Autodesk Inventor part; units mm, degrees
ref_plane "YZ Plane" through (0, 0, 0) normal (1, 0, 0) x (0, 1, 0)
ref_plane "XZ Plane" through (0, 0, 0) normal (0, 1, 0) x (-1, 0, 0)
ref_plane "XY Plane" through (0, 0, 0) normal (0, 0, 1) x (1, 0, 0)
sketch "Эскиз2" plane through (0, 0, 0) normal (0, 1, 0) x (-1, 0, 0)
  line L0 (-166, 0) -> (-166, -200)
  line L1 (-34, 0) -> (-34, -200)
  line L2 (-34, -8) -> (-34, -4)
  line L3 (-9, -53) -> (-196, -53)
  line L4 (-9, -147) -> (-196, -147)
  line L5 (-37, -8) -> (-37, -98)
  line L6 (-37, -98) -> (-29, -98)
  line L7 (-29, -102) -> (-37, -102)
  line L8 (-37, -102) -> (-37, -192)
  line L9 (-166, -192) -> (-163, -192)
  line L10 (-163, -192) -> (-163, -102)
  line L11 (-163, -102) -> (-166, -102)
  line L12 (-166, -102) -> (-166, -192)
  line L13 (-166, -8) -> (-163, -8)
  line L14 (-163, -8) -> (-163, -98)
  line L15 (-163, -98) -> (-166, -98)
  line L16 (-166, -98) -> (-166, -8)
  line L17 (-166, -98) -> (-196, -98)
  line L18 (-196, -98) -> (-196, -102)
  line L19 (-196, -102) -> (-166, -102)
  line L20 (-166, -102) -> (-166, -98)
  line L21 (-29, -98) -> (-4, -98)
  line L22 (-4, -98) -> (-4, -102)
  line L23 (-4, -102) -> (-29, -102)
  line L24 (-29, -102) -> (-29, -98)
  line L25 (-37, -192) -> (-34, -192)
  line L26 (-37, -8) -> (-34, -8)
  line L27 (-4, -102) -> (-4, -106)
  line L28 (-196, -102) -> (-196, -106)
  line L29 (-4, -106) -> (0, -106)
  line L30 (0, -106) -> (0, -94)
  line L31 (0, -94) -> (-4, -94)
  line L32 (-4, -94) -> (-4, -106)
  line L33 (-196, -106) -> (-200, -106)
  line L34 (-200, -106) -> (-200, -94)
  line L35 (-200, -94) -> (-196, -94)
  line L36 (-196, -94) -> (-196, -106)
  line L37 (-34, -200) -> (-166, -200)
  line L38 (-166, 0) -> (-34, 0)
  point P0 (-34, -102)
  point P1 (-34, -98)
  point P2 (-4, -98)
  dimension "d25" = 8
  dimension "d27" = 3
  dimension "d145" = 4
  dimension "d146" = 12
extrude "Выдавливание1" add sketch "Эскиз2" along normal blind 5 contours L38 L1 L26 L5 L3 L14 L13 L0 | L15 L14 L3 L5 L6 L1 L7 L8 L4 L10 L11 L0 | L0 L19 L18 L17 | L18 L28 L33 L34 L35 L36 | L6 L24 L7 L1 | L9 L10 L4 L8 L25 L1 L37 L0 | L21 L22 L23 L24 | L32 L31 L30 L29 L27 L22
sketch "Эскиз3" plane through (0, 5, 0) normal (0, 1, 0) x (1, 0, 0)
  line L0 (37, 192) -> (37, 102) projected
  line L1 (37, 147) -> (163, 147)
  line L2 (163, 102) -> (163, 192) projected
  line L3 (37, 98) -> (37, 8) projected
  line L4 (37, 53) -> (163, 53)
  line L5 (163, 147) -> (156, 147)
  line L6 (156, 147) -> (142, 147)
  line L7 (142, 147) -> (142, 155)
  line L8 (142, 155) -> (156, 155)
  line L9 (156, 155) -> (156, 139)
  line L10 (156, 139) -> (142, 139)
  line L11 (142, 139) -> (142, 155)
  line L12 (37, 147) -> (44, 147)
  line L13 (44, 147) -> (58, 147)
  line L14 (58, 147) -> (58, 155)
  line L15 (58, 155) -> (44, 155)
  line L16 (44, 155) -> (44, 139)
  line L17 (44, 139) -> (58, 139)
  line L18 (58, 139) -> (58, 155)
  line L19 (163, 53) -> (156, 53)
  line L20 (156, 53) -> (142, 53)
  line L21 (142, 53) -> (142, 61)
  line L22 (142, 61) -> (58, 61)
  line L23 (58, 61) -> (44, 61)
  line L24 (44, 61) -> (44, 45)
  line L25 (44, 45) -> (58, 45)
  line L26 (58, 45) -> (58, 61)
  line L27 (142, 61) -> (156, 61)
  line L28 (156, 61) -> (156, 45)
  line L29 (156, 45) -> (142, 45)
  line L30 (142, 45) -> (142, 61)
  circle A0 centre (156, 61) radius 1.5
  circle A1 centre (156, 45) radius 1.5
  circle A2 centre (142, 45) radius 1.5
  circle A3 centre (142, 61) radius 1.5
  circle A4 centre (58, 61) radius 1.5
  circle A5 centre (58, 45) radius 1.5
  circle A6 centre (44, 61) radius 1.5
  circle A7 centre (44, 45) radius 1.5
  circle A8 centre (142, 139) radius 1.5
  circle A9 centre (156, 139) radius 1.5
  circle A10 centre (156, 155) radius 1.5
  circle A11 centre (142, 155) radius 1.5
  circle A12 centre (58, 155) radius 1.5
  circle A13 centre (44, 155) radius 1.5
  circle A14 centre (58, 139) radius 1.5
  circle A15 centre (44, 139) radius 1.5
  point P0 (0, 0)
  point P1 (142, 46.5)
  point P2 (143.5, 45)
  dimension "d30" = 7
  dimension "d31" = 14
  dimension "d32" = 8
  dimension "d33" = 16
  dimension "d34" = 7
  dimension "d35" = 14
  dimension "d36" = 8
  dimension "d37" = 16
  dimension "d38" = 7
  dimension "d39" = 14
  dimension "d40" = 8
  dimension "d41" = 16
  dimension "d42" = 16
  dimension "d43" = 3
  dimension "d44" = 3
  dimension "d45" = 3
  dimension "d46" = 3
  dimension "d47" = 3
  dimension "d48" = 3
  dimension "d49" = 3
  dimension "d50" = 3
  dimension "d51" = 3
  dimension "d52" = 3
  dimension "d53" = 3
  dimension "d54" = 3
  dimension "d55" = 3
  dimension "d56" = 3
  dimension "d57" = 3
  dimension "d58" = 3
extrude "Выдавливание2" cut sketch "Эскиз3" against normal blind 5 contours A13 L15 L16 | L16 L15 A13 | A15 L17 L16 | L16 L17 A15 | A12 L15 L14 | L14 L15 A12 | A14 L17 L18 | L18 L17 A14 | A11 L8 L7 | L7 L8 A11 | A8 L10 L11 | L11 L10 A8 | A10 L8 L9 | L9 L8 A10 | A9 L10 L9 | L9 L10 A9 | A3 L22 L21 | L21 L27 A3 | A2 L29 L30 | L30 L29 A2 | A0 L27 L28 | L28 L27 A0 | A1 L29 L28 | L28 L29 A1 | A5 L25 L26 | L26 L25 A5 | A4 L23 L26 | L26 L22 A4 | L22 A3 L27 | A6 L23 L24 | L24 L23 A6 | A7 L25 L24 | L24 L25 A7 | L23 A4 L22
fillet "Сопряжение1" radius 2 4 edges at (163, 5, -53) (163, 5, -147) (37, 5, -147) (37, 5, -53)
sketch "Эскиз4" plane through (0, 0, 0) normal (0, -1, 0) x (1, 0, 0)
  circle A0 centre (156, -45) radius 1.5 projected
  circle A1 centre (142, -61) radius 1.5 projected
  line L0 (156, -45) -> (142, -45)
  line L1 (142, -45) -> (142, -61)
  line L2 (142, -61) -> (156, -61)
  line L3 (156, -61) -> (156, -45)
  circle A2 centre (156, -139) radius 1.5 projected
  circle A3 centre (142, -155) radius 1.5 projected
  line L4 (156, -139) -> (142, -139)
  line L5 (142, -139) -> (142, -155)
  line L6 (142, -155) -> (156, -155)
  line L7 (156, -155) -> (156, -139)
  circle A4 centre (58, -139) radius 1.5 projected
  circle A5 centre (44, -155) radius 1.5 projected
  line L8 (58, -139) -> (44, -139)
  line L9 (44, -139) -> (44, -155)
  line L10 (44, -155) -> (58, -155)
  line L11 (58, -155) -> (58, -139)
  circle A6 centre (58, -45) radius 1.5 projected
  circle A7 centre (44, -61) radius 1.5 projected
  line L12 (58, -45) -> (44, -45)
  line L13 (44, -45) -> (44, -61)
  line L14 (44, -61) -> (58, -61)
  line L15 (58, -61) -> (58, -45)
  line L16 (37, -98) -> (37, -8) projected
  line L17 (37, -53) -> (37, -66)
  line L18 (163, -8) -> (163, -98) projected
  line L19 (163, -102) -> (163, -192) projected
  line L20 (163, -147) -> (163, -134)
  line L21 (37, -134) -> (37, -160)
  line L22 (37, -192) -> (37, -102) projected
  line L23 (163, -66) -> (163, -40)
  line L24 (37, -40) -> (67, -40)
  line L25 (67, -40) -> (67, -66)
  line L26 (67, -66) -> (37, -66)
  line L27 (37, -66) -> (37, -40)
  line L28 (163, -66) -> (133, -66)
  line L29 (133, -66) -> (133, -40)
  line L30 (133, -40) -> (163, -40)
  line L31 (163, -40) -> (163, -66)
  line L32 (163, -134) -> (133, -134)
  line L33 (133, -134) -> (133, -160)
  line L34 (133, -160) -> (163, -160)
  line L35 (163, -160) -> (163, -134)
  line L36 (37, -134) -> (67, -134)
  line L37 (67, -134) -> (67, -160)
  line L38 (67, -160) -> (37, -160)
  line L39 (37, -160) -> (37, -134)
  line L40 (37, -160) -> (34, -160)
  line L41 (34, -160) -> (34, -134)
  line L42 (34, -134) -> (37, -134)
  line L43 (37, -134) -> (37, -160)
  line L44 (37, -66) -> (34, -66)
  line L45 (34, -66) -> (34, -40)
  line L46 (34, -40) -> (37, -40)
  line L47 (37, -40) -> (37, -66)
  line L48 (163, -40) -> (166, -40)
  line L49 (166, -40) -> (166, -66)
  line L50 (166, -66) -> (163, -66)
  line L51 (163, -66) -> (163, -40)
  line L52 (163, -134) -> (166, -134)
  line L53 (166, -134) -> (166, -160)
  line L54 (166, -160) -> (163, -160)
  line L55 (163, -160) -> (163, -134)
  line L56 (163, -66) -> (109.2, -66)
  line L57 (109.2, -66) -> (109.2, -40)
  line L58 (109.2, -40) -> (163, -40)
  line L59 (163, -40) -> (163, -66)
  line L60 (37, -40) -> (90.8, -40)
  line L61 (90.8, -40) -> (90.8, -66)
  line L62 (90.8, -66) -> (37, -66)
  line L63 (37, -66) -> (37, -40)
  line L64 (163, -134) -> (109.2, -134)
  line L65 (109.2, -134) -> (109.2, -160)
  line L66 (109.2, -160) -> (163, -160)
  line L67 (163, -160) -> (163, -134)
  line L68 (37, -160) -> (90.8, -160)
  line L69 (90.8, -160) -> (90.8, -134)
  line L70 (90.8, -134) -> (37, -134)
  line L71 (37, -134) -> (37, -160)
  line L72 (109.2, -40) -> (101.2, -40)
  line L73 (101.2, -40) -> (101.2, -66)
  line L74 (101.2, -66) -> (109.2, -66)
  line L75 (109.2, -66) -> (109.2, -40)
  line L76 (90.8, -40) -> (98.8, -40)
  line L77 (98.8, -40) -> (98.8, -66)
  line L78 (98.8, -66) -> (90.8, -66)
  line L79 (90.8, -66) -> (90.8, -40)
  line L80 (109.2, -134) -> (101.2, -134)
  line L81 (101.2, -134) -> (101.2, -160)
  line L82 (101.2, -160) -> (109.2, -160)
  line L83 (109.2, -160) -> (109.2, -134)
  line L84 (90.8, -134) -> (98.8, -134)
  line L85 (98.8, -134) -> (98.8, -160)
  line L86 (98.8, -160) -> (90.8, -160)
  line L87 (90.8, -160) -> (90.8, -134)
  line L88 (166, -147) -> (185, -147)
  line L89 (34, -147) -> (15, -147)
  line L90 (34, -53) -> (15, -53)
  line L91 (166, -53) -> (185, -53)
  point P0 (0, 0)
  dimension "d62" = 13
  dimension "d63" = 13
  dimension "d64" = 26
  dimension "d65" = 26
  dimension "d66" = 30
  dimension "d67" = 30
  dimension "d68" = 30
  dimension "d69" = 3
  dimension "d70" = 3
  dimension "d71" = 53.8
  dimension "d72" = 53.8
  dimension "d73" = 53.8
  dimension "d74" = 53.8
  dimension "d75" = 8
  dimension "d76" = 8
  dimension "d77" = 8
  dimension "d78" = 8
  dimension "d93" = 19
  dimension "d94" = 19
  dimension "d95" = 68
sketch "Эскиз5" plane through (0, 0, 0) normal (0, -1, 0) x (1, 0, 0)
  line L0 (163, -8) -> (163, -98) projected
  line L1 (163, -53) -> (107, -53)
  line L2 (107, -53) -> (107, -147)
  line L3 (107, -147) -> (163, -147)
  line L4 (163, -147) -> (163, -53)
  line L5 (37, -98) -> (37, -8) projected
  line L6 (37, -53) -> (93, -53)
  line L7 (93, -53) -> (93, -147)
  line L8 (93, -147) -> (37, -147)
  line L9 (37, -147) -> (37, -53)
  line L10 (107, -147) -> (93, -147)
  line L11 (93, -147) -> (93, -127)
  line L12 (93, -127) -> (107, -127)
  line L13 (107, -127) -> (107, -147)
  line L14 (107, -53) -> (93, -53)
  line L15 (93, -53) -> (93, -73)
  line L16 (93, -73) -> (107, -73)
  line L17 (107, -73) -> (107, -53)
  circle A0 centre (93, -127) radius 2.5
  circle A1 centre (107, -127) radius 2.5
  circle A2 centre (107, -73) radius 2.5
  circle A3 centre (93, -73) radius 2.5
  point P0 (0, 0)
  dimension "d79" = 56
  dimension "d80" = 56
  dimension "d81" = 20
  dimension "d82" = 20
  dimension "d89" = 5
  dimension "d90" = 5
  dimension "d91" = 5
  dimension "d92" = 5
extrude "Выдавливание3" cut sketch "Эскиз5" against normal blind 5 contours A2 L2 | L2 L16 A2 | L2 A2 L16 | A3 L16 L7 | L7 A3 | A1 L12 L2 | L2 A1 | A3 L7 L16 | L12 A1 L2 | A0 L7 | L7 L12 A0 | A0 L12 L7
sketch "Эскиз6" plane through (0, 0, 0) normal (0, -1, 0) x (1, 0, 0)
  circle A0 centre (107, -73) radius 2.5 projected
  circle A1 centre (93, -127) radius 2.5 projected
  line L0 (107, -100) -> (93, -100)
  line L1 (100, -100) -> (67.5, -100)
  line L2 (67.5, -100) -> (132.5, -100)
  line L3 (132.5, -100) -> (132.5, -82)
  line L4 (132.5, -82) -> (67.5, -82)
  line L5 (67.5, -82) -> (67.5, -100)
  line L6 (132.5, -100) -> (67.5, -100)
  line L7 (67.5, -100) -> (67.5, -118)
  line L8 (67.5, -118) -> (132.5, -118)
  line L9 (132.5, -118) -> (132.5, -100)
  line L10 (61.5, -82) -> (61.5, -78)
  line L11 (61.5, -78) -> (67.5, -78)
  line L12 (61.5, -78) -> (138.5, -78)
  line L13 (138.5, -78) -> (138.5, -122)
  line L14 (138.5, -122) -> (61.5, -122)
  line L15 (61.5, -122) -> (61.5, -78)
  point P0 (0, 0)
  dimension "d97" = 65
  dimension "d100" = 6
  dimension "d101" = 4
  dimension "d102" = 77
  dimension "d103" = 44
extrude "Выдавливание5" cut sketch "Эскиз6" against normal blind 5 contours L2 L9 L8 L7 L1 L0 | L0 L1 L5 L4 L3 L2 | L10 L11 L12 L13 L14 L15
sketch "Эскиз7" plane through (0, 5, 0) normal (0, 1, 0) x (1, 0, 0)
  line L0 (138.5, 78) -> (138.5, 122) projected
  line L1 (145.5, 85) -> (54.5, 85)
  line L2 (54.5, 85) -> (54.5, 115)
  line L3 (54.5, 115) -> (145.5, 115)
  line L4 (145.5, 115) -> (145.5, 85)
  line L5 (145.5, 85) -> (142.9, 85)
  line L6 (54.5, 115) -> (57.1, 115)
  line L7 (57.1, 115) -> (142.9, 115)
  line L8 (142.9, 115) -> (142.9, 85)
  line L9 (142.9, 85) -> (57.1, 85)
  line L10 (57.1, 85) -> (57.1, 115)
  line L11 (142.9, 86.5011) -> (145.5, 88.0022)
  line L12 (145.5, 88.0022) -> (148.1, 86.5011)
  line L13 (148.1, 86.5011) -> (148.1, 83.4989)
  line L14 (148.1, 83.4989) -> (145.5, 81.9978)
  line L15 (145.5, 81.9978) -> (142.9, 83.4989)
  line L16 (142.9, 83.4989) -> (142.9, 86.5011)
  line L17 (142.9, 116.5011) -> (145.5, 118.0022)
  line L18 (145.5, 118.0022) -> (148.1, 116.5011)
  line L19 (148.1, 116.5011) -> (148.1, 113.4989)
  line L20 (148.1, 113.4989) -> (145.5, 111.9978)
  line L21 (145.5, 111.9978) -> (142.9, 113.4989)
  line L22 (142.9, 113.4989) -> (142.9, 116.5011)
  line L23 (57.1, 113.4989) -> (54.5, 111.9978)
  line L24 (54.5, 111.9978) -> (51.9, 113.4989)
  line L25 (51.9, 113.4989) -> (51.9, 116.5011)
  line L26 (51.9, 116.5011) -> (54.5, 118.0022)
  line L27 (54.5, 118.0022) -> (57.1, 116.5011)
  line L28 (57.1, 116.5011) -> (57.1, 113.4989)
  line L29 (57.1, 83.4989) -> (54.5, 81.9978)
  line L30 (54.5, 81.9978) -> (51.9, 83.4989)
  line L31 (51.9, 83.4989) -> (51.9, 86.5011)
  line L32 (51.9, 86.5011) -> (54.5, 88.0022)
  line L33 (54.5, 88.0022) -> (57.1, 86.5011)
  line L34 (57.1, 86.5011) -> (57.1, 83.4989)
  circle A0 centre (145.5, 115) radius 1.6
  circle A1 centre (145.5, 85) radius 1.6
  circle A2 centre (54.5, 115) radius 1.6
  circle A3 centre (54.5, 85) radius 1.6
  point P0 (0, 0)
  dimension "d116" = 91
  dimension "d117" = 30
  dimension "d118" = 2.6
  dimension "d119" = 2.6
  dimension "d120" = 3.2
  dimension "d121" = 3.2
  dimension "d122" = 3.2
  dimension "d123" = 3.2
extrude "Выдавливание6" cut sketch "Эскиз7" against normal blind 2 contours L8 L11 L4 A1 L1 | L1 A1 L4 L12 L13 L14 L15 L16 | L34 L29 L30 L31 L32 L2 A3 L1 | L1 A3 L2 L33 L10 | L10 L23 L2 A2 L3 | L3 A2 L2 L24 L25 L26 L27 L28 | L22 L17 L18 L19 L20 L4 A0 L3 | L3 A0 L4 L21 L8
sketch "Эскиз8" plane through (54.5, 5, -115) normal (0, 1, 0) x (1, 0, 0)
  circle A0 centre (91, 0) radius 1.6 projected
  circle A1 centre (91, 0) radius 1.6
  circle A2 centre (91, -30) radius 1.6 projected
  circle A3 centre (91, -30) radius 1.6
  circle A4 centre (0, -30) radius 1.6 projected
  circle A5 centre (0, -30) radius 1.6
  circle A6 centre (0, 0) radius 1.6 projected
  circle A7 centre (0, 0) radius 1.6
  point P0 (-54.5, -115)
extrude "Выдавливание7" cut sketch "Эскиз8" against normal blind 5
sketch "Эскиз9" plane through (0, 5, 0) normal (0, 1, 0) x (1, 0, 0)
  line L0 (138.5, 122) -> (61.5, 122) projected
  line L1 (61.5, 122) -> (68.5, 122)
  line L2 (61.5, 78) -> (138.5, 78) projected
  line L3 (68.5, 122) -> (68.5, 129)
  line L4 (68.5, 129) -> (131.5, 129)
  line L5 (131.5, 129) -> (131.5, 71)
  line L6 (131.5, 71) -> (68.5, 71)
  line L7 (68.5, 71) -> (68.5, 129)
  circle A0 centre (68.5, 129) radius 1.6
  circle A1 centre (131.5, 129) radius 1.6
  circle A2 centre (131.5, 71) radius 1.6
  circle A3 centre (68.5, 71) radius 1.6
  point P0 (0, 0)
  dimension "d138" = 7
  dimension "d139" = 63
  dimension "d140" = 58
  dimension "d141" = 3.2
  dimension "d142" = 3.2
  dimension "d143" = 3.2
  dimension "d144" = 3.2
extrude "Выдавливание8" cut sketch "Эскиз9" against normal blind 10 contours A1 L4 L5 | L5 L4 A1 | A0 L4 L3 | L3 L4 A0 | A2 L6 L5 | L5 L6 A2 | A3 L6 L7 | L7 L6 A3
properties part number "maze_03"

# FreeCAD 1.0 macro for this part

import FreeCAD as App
import Part
import Sketcher
from FreeCAD import Vector
Q = App.Units.Quantity


def edges_at(feature, points):
    """Names of the edges that pass closest to the given points."""
    edges = feature.Shape.Edges
    near = lambda p: min(range(len(edges)), key=lambda i: edges[i].distToShape(Part.Vertex(*p))[0])
    return sorted({f"Edge{near(p) + 1}" for p in points})

doc = App.newDocument("Part")
body = doc.addObject("PartDesign::Body", "Body")

# Sketch on XZ plane
sketch1 = body.newObject("Sketcher::SketchObject", "Sketch")
sketch1.AttachmentSupport = (doc.getObject("XZ_Plane"), [""])
sketch1.MapMode = "FlatFace"
sketch1.addGeometry([
    Part.LineSegment(Vector(34, 0, 0), Vector(166, 0, 0)),  # 0
    Part.LineSegment(Vector(166, 0, 0), Vector(166, -8, 0)),  # 1
    Part.LineSegment(Vector(166, -8, 0), Vector(163, -8, 0)),  # 2
    Part.LineSegment(Vector(163, -8, 0), Vector(163, -98, 0)),  # 3
    Part.LineSegment(Vector(163, -98, 0), Vector(196, -98, 0)),  # 4
    Part.LineSegment(Vector(196, -98, 0), Vector(196, -94, 0)),  # 5
    Part.LineSegment(Vector(196, -94, 0), Vector(200, -94, 0)),  # 6
    Part.LineSegment(Vector(200, -94, 0), Vector(200, -106, 0)),  # 7
    Part.LineSegment(Vector(200, -106, 0), Vector(196, -106, 0)),  # 8
    Part.LineSegment(Vector(196, -106, 0), Vector(196, -102, 0)),  # 9
    Part.LineSegment(Vector(196, -102, 0), Vector(163, -102, 0)),  # 10
    Part.LineSegment(Vector(163, -102, 0), Vector(163, -192, 0)),  # 11
    Part.LineSegment(Vector(163, -192, 0), Vector(166, -192, 0)),  # 12
    Part.LineSegment(Vector(166, -192, 0), Vector(166, -200, 0)),  # 13
    Part.LineSegment(Vector(166, -200, 0), Vector(34, -200, 0)),  # 14
    Part.LineSegment(Vector(34, -200, 0), Vector(34, -192, 0)),  # 15
    Part.LineSegment(Vector(34, -192, 0), Vector(37, -192, 0)),  # 16
    Part.LineSegment(Vector(37, -192, 0), Vector(37, -102, 0)),  # 17
    Part.LineSegment(Vector(37, -102, 0), Vector(4, -102, 0)),  # 18
    Part.LineSegment(Vector(4, -102, 0), Vector(4, -106, 0)),  # 19
    Part.LineSegment(Vector(4, -106, 0), Vector(0, -106, 0)),  # 20
    Part.LineSegment(Vector(0, -106, 0), Vector(0, -94, 0)),  # 21
    Part.LineSegment(Vector(0, -94, 0), Vector(4, -94, 0)),  # 22
    Part.LineSegment(Vector(4, -94, 0), Vector(4, -98, 0)),  # 23
    Part.LineSegment(Vector(4, -98, 0), Vector(37, -98, 0)),  # 24
    Part.LineSegment(Vector(37, -98, 0), Vector(37, -8, 0)),  # 25
    Part.LineSegment(Vector(37, -8, 0), Vector(34, -8, 0)),  # 26
    Part.LineSegment(Vector(34, -8, 0), Vector(34, 0, 0)),  # 27
], False)
sketch1.addConstraint([
    Sketcher.Constraint("Coincident", 0, 2, 1, 1),
    Sketcher.Constraint("Coincident", 1, 2, 2, 1),
    Sketcher.Constraint("Coincident", 2, 2, 3, 1),
    Sketcher.Constraint("Coincident", 3, 2, 4, 1),
    Sketcher.Constraint("Coincident", 4, 2, 5, 1),
    Sketcher.Constraint("Coincident", 5, 2, 6, 1),
    Sketcher.Constraint("Coincident", 6, 2, 7, 1),
    Sketcher.Constraint("Coincident", 7, 2, 8, 1),
    Sketcher.Constraint("Coincident", 8, 2, 9, 1),
    Sketcher.Constraint("Coincident", 9, 2, 10, 1),
    Sketcher.Constraint("Coincident", 10, 2, 11, 1),
    Sketcher.Constraint("Coincident", 11, 2, 12, 1),
    Sketcher.Constraint("Coincident", 12, 2, 13, 1),
    Sketcher.Constraint("Coincident", 13, 2, 14, 1),
    Sketcher.Constraint("Coincident", 14, 2, 15, 1),
    Sketcher.Constraint("Coincident", 15, 2, 16, 1),
    Sketcher.Constraint("Coincident", 16, 2, 17, 1),
    Sketcher.Constraint("Coincident", 17, 2, 18, 1),
    Sketcher.Constraint("Coincident", 18, 2, 19, 1),
    Sketcher.Constraint("Coincident", 19, 2, 20, 1),
    Sketcher.Constraint("Coincident", 20, 2, 21, 1),
    Sketcher.Constraint("Coincident", 21, 2, 22, 1),
    Sketcher.Constraint("Coincident", 22, 2, 23, 1),
    Sketcher.Constraint("Coincident", 23, 2, 24, 1),
    Sketcher.Constraint("Coincident", 24, 2, 25, 1),
    Sketcher.Constraint("Coincident", 25, 2, 26, 1),
    Sketcher.Constraint("Coincident", 26, 2, 27, 1),
    Sketcher.Constraint("Coincident", 27, 2, 0, 1),
    Sketcher.Constraint("Horizontal", 0),
    Sketcher.Constraint("Vertical", 1),
    Sketcher.Constraint("Horizontal", 2),
    Sketcher.Constraint("Vertical", 3),
    Sketcher.Constraint("Horizontal", 4),
    Sketcher.Constraint("Vertical", 5),
    Sketcher.Constraint("Horizontal", 6),
    Sketcher.Constraint("Vertical", 7),
    Sketcher.Constraint("Horizontal", 8),
    Sketcher.Constraint("Vertical", 9),
    Sketcher.Constraint("Horizontal", 10),
    Sketcher.Constraint("Vertical", 11),
    Sketcher.Constraint("Horizontal", 12),
    Sketcher.Constraint("Vertical", 13),
    Sketcher.Constraint("Horizontal", 14),
    Sketcher.Constraint("Vertical", 15),
    Sketcher.Constraint("Horizontal", 16),
    Sketcher.Constraint("Vertical", 17),
    Sketcher.Constraint("Horizontal", 18),
    Sketcher.Constraint("Vertical", 19),
    Sketcher.Constraint("Horizontal", 20),
    Sketcher.Constraint("Vertical", 21),
    Sketcher.Constraint("Horizontal", 22),
    Sketcher.Constraint("Vertical", 23),
    Sketcher.Constraint("Horizontal", 24),
    Sketcher.Constraint("Vertical", 25),
    Sketcher.Constraint("Horizontal", 26),
    Sketcher.Constraint("Vertical", 27),
    Sketcher.Constraint("PointOnObject", 0, 2, -1),
    Sketcher.Constraint("PointOnObject", 20, 2, -2),
    Sketcher.Constraint("Horizontal", 12, 2, 15, 2),
    Sketcher.Constraint("Horizontal", 10, 2, 17, 2),
    Sketcher.Constraint("Horizontal", 8, 2, 19, 2),
    Sketcher.Constraint("Horizontal", 6, 2, 21, 2),
    Sketcher.Constraint("Horizontal", 4, 2, 23, 2),
    Sketcher.Constraint("Horizontal", 2, 2, 25, 2),
    Sketcher.Constraint("Vertical", 5, 2, 8, 2),
    Sketcher.Constraint("Vertical", 3, 2, 10, 2),
    Sketcher.Constraint("Vertical", 1, 2, 12, 2),
    Sketcher.Constraint("Vertical", 19, 2, 22, 2),
    Sketcher.Constraint("Vertical", 17, 2, 24, 2),
    Sketcher.Constraint("Vertical", 15, 2, 26, 2),
    Sketcher.Constraint("Equal", 12, 16),
    Sketcher.Constraint("Equal", 10, 18),
    Sketcher.Constraint("Equal", 8, 20),
    Sketcher.Constraint("Equal", 22, 5),
    Sketcher.Constraint("Equal", 5, 9),
    Sketcher.Constraint("Equal", 3, 11),
    Sketcher.Constraint("Equal", 1, 13),
    Sketcher.Constraint("DistanceX", 2, 2, 2, 1, 3.0),
    Sketcher.Constraint("DistanceX", 6, 1, 6, 2, 4.0),
    Sketcher.Constraint("DistanceY", 1, 2, 1, 1, 8.0),
    Sketcher.Constraint("DistanceY", 7, 2, 7, 1, 12.0),
    Sketcher.Constraint("DistanceX", 0, 1, 0, 2, 132.0),
    Sketcher.Constraint("DistanceX", 4, 1, 4, 2, 33.0),
    Sketcher.Constraint("DistanceY", 3, 2, 3, 1, 90.0),
])
pad1 = body.newObject("PartDesign::Pad", "Pad")
pad1.Profile = sketch1
pad1.Length = 5
pad1.Reversed = True

# Sketch on XZ plane
sketch2 = body.newObject("Sketcher::SketchObject", "Sketch001")
sketch2.AttachmentSupport = (doc.getObject("XZ_Plane"), [""])
sketch2.MapMode = "FlatFace"
sketch2.AttachmentOffset = App.Placement(Vector(0, 0, -5), App.Rotation())
sketch2.addGeometry([
    Part.Circle(Vector(44, -155, 0), Vector(0, 0, 1), 1.5),  # 0
    Part.Circle(Vector(44, -139, 0), Vector(0, 0, 1), 1.5),  # 1
    Part.Circle(Vector(58, -155, 0), Vector(0, 0, 1), 1.5),  # 2
    Part.Circle(Vector(58, -139, 0), Vector(0, 0, 1), 1.5),  # 3
    Part.Circle(Vector(142, -155, 0), Vector(0, 0, 1), 1.5),  # 4
    Part.Circle(Vector(142, -139, 0), Vector(0, 0, 1), 1.5),  # 5
    Part.Circle(Vector(156, -155, 0), Vector(0, 0, 1), 1.5),  # 6
    Part.Circle(Vector(156, -139, 0), Vector(0, 0, 1), 1.5),  # 7
    Part.Circle(Vector(142, -61, 0), Vector(0, 0, 1), 1.5),  # 8
    Part.Circle(Vector(142, -45, 0), Vector(0, 0, 1), 1.5),  # 9
    Part.Circle(Vector(156, -61, 0), Vector(0, 0, 1), 1.5),  # 10
    Part.Circle(Vector(156, -45, 0), Vector(0, 0, 1), 1.5),  # 11
    Part.Circle(Vector(58, -45, 0), Vector(0, 0, 1), 1.5),  # 12
    Part.Circle(Vector(58, -61, 0), Vector(0, 0, 1), 1.5),  # 13
    Part.Circle(Vector(44, -61, 0), Vector(0, 0, 1), 1.5),  # 14
    Part.Circle(Vector(44, -45, 0), Vector(0, 0, 1), 1.5),  # 15
], False)
sketch2.addConstraint([
    Sketcher.Constraint("Equal", 0, 1),
    Sketcher.Constraint("Equal", 1, 2),
    Sketcher.Constraint("Equal", 2, 3),
    Sketcher.Constraint("Equal", 3, 4),
    Sketcher.Constraint("Equal", 4, 5),
    Sketcher.Constraint("Equal", 5, 6),
    Sketcher.Constraint("Equal", 6, 7),
    Sketcher.Constraint("Equal", 7, 8),
    Sketcher.Constraint("Equal", 8, 9),
    Sketcher.Constraint("Equal", 9, 10),
    Sketcher.Constraint("Equal", 10, 11),
    Sketcher.Constraint("Equal", 11, 12),
    Sketcher.Constraint("Equal", 12, 13),
    Sketcher.Constraint("Equal", 13, 14),
    Sketcher.Constraint("Equal", 14, 15),
    Sketcher.Constraint("Horizontal", 0, 3, 2, 3),
    Sketcher.Constraint("Horizontal", 1, 3, 3, 3),
    Sketcher.Constraint("Horizontal", 2, 3, 4, 3),
    Sketcher.Constraint("Horizontal", 3, 3, 5, 3),
    Sketcher.Constraint("Horizontal", 4, 3, 6, 3),
    Sketcher.Constraint("Horizontal", 5, 3, 7, 3),
    Sketcher.Constraint("Horizontal", 8, 3, 10, 3),
    Sketcher.Constraint("Horizontal", 9, 3, 11, 3),
    Sketcher.Constraint("Horizontal", 11, 3, 12, 3),
    Sketcher.Constraint("Horizontal", 10, 3, 13, 3),
    Sketcher.Constraint("Horizontal", 13, 3, 14, 3),
    Sketcher.Constraint("Horizontal", 12, 3, 15, 3),
    Sketcher.Constraint("Vertical", 0, 3, 1, 3),
    Sketcher.Constraint("Vertical", 2, 3, 3, 3),
    Sketcher.Constraint("Vertical", 4, 3, 5, 3),
    Sketcher.Constraint("Vertical", 6, 3, 7, 3),
    Sketcher.Constraint("Vertical", 5, 3, 8, 3),
    Sketcher.Constraint("Vertical", 8, 3, 9, 3),
    Sketcher.Constraint("Vertical", 7, 3, 10, 3),
    Sketcher.Constraint("Vertical", 10, 3, 11, 3),
    Sketcher.Constraint("Vertical", 3, 3, 12, 3),
    Sketcher.Constraint("Vertical", 12, 3, 13, 3),
    Sketcher.Constraint("Vertical", 1, 3, 14, 3),
    Sketcher.Constraint("Vertical", 14, 3, 15, 3),
    Sketcher.Constraint("Diameter", 0, 3.0),
    Sketcher.Constraint("DistanceY", 0, 3, 1, 3, 16.0),
    Sketcher.Constraint("DistanceX", 0, 3, 2, 3, 14.0),
    Sketcher.Constraint("DistanceX", 4, 3, 6, 3, 14.0),
    Sketcher.Constraint("DistanceY", 8, 3, 9, 3, 16.0),
    Sketcher.Constraint("DistanceX", -1, 1, 0, 3, 44.0),
    Sketcher.Constraint("DistanceY", 0, 3, -1, 1, 155.0),
    Sketcher.Constraint("DistanceX", -1, 1, 4, 3, 142.0),
    Sketcher.Constraint("DistanceY", 8, 3, -1, 1, 61.0),
])
pocket1 = body.newObject("PartDesign::Pocket", "Pocket")
pocket1.Profile = sketch2
pocket1.Length = 5
pocket1.Reversed = True
doc.recompute()

fillet = body.newObject("PartDesign::Fillet", "Fillet")
fillet.Base = (pocket1, edges_at(pocket1, [
    (163, 5, -53),
    (163, 5, -147),
    (37, 5, -147),
    (37, 5, -53),
]))
fillet.Radius = 2

# Sketch on XZ plane
sketch3 = body.newObject("Sketcher::SketchObject", "Sketch002")
sketch3.AttachmentSupport = (doc.getObject("XZ_Plane"), [""])
sketch3.MapMode = "FlatFace"
sketch3.addGeometry([
    Part.Circle(Vector(107, -73, 0), Vector(0, 0, 1), 2.5),
    Part.Circle(Vector(93, -73, 0), Vector(0, 0, 1), 2.5),
    Part.Circle(Vector(107, -127, 0), Vector(0, 0, 1), 2.5),
    Part.Circle(Vector(93, -127, 0), Vector(0, 0, 1), 2.5),
], False)
sketch3.addConstraint([
    Sketcher.Constraint("Equal", 0, 1),
    Sketcher.Constraint("Equal", 1, 2),
    Sketcher.Constraint("Equal", 2, 3),
    Sketcher.Constraint("Horizontal", 0, 3, 1, 3),
    Sketcher.Constraint("Horizontal", 2, 3, 3, 3),
    Sketcher.Constraint("Vertical", 0, 3, 2, 3),
    Sketcher.Constraint("Vertical", 1, 3, 3, 3),
    Sketcher.Constraint("Diameter", 0, 5.0),
    Sketcher.Constraint("DistanceX", -1, 1, 0, 3, 107.0),
    Sketcher.Constraint("DistanceY", 0, 3, -1, 1, 73.0),
    Sketcher.Constraint("DistanceX", -1, 1, 1, 3, 93.0),
    Sketcher.Constraint("DistanceY", 2, 3, -1, 1, 127.0),
])
pocket2 = body.newObject("PartDesign::Pocket", "Pocket001")
pocket2.Profile = sketch3
pocket2.Length = 5

# Sketch on XZ plane
sketch4 = body.newObject("Sketcher::SketchObject", "Sketch003")
sketch4.AttachmentSupport = (doc.getObject("XZ_Plane"), [""])
sketch4.MapMode = "FlatFace"
sketch4.addGeometry([
    Part.LineSegment(Vector(62, -78, 0), Vector(62, -122, 0)),
    Part.LineSegment(Vector(62, -122, 0), Vector(138, -122, 0)),
    Part.LineSegment(Vector(138, -122, 0), Vector(138, -78, 0)),
    Part.LineSegment(Vector(138, -78, 0), Vector(62, -78, 0)),
], False)
sketch4.addConstraint([
    Sketcher.Constraint("Coincident", 0, 2, 1, 1),
    Sketcher.Constraint("Coincident", 1, 2, 2, 1),
    Sketcher.Constraint("Coincident", 2, 2, 3, 1),
    Sketcher.Constraint("Coincident", 3, 2, 0, 1),
    Sketcher.Constraint("Vertical", 0),
    Sketcher.Constraint("Horizontal", 1),
    Sketcher.Constraint("Vertical", 2),
    Sketcher.Constraint("Horizontal", 3),
    Sketcher.Constraint("DistanceX", 1, 1, 1, 2, 77.0),
    Sketcher.Constraint("DistanceY", 0, 2, 0, 1, 44.0),
    Sketcher.Constraint("DistanceY", 0, 2, -1, 1, 122.0),
    Sketcher.Constraint("DistanceX", -1, 1, 0, 2, 61.5),
])
pocket3 = body.newObject("PartDesign::Pocket", "Pocket002")
pocket3.Profile = sketch4
pocket3.Length = 5

# Sketch on XZ plane
sketch5 = body.newObject("Sketcher::SketchObject", "Sketch004")
sketch5.AttachmentSupport = (doc.getObject("XZ_Plane"), [""])
sketch5.MapMode = "FlatFace"
sketch5.AttachmentOffset = App.Placement(Vector(0, 0, -5), App.Rotation())
sketch5.addGeometry([
    Part.LineSegment(Vector(142.9, -86.5, 0), Vector(142.9, -83.5, 0)),  # 0
    Part.LineSegment(Vector(142.9, -83.5, 0), Vector(145.5, -82, 0)),  # 1
    Part.LineSegment(Vector(145.5, -82, 0), Vector(148.1, -83.5, 0)),  # 2
    Part.LineSegment(Vector(148.1, -83.5, 0), Vector(148.1, -86.5, 0)),  # 3
    Part.LineSegment(Vector(148.1, -86.5, 0), Vector(145.5, -88, 0)),  # 4
    Part.LineSegment(Vector(145.5, -88, 0), Vector(142.9, -86.5, 0)),  # 5
    Part.Circle(Vector(145.5, -85, 0), Vector(0, 0, 1), 1.6),  # 6
    Part.LineSegment(Vector(57.1, -83.5, 0), Vector(57.1, -86.5, 0)),  # 7
    Part.LineSegment(Vector(57.1, -86.5, 0), Vector(54.5, -88, 0)),  # 8
    Part.LineSegment(Vector(54.5, -88, 0), Vector(51.9, -86.5, 0)),  # 9
    Part.LineSegment(Vector(51.9, -86.5, 0), Vector(51.9, -83.5, 0)),  # 10
    Part.LineSegment(Vector(51.9, -83.5, 0), Vector(54.5, -82, 0)),  # 11
    Part.LineSegment(Vector(54.5, -82, 0), Vector(57.1, -83.5, 0)),  # 12
    Part.Circle(Vector(54.5, -85, 0), Vector(0, 0, 1), 1.6),  # 13
    Part.LineSegment(Vector(57.1, -113.5, 0), Vector(57.1, -116.5, 0)),  # 14
    Part.LineSegment(Vector(57.1, -116.5, 0), Vector(54.5, -118, 0)),  # 15
    Part.LineSegment(Vector(54.5, -118, 0), Vector(51.9, -116.5, 0)),  # 16
    Part.LineSegment(Vector(51.9, -116.5, 0), Vector(51.9, -113.5, 0)),  # 17
    Part.LineSegment(Vector(51.9, -113.5, 0), Vector(54.5, -112, 0)),  # 18
    Part.LineSegment(Vector(54.5, -112, 0), Vector(57.1, -113.5, 0)),  # 19
    Part.Circle(Vector(54.5, -115, 0), Vector(0, 0, 1), 1.6),  # 20
    Part.LineSegment(Vector(142.9, -116.5, 0), Vector(142.9, -113.5, 0)),  # 21
    Part.LineSegment(Vector(142.9, -113.5, 0), Vector(145.5, -112, 0)),  # 22
    Part.LineSegment(Vector(145.5, -112, 0), Vector(148.1, -113.5, 0)),  # 23
    Part.LineSegment(Vector(148.1, -113.5, 0), Vector(148.1, -116.5, 0)),  # 24
    Part.LineSegment(Vector(148.1, -116.5, 0), Vector(145.5, -118, 0)),  # 25
    Part.LineSegment(Vector(145.5, -118, 0), Vector(142.9, -116.5, 0)),  # 26
    Part.Circle(Vector(145.5, -115, 0), Vector(0, 0, 1), 1.6),  # 27
], False)
sketch5.addConstraint([
    Sketcher.Constraint("Coincident", 0, 2, 1, 1),
    Sketcher.Constraint("Coincident", 1, 2, 2, 1),
    Sketcher.Constraint("Coincident", 2, 2, 3, 1),
    Sketcher.Constraint("Coincident", 3, 2, 4, 1),
    Sketcher.Constraint("Coincident", 4, 2, 5, 1),
    Sketcher.Constraint("Coincident", 5, 2, 0, 1),
    Sketcher.Constraint("Coincident", 7, 2, 8, 1),
    Sketcher.Constraint("Coincident", 8, 2, 9, 1),
    Sketcher.Constraint("Coincident", 9, 2, 10, 1),
    Sketcher.Constraint("Coincident", 10, 2, 11, 1),
    Sketcher.Constraint("Coincident", 11, 2, 12, 1),
    Sketcher.Constraint("Coincident", 12, 2, 7, 1),
    Sketcher.Constraint("Coincident", 14, 2, 15, 1),
    Sketcher.Constraint("Coincident", 15, 2, 16, 1),
    Sketcher.Constraint("Coincident", 16, 2, 17, 1),
    Sketcher.Constraint("Coincident", 17, 2, 18, 1),
    Sketcher.Constraint("Coincident", 18, 2, 19, 1),
    Sketcher.Constraint("Coincident", 19, 2, 14, 1),
    Sketcher.Constraint("Coincident", 21, 2, 22, 1),
    Sketcher.Constraint("Coincident", 22, 2, 23, 1),
    Sketcher.Constraint("Coincident", 23, 2, 24, 1),
    Sketcher.Constraint("Coincident", 24, 2, 25, 1),
    Sketcher.Constraint("Coincident", 25, 2, 26, 1),
    Sketcher.Constraint("Coincident", 26, 2, 21, 1),
    Sketcher.Constraint("Vertical", 0),
    Sketcher.Constraint("Vertical", 3),
    Sketcher.Constraint("Vertical", 7),
    Sketcher.Constraint("Vertical", 10),
    Sketcher.Constraint("Vertical", 14),
    Sketcher.Constraint("Vertical", 17),
    Sketcher.Constraint("Vertical", 21),
    Sketcher.Constraint("Vertical", 24),
    Sketcher.Constraint("Equal", 6, 13),
    Sketcher.Constraint("Equal", 13, 20),
    Sketcher.Constraint("Equal", 20, 27),
    Sketcher.Constraint("Parallel", 1, 4),
    Sketcher.Constraint("Parallel", 2, 5),
    Sketcher.Constraint("Parallel", 4, 8),
    Sketcher.Constraint("Parallel", 5, 9),
    Sketcher.Constraint("Parallel", 8, 11),
    Sketcher.Constraint("Parallel", 9, 12),
    Sketcher.Constraint("Parallel", 11, 15),
    Sketcher.Constraint("Parallel", 12, 16),
    Sketcher.Constraint("Parallel", 15, 18),
    Sketcher.Constraint("Parallel", 16, 19),
    Sketcher.Constraint("Parallel", 18, 22),
    Sketcher.Constraint("Parallel", 19, 23),
    Sketcher.Constraint("Parallel", 22, 25),
    Sketcher.Constraint("Parallel", 23, 26),
    Sketcher.Constraint("Horizontal", 6, 3, 13, 3),
    Sketcher.Constraint("Horizontal", 20, 3, 27, 3),
    Sketcher.Constraint("Horizontal", 0, 2, 2, 2),
    Sketcher.Constraint("Horizontal", 3, 2, 5, 2),
    Sketcher.Constraint("Horizontal", 5, 2, 7, 2),
    Sketcher.Constraint("Horizontal", 4, 2, 8, 2),
    Sketcher.Constraint("Horizontal", 7, 2, 9, 2),
    Sketcher.Constraint("Horizontal", 2, 2, 10, 2),
    Sketcher.Constraint("Horizontal", 1, 2, 11, 2),
    Sketcher.Constraint("Horizontal", 14, 2, 16, 2),
    Sketcher.Constraint("Horizontal", 17, 2, 19, 2),
    Sketcher.Constraint("Horizontal", 19, 2, 21, 2),
    Sketcher.Constraint("Horizontal", 18, 2, 22, 2),
    Sketcher.Constraint("Horizontal", 21, 2, 23, 2),
    Sketcher.Constraint("Horizontal", 16, 2, 24, 2),
    Sketcher.Constraint("Horizontal", 15, 2, 25, 2),
    Sketcher.Constraint("Vertical", 13, 3, 20, 3),
    Sketcher.Constraint("Vertical", 6, 3, 27, 3),
    Sketcher.Constraint("Vertical", 27, 3, 1, 2),
    Sketcher.Constraint("Vertical", 1, 2, 4, 2),
    Sketcher.Constraint("Vertical", 20, 3, 8, 2),
    Sketcher.Constraint("Vertical", 12, 2, 14, 2),
    Sketcher.Constraint("Vertical", 11, 2, 15, 2),
    Sketcher.Constraint("Vertical", 5, 2, 21, 2),
    Sketcher.Constraint("Equal", 10, 14),
    Sketcher.Constraint("Diameter", 6, 3.2),
    Sketcher.Constraint("Angle", 1, Q("29.9998 deg")),
    Sketcher.Constraint("DistanceX", 13, 3, 6, 3, 91.0),
    Sketcher.Constraint("DistanceY", 20, 3, 13, 3, 30.0),
    Sketcher.Constraint("DistanceY", 14, 2, 7, 2, 30.0),
    Sketcher.Constraint("DistanceX", 0, 2, 6, 3, 2.6),
    Sketcher.Constraint("DistanceY", 6, 3, -1, 1, 85.0),
    Sketcher.Constraint("DistanceX", -1, 1, 6, 3, 145.5),
    Sketcher.Constraint("DistanceY", 0, 1, 0, 2, 3.0022),
    Sketcher.Constraint("DistanceY", 0, 2, -1, 1, 83.499),
])
pocket4 = body.newObject("PartDesign::Pocket", "Pocket003")
pocket4.Profile = sketch5
pocket4.Length = 2
pocket4.Reversed = True

# Sketch on XZ plane
sketch6 = body.newObject("Sketcher::SketchObject", "Sketch005")
sketch6.AttachmentSupport = (doc.getObject("XZ_Plane"), [""])
sketch6.MapMode = "FlatFace"
sketch6.AttachmentOffset = App.Placement(Vector(0, 0, -5), App.Rotation())
sketch6.addGeometry([
    Part.Circle(Vector(145.5, -115, 0), Vector(0, 0, 1), 1.6),
    Part.Circle(Vector(145.5, -85, 0), Vector(0, 0, 1), 1.6),
    Part.Circle(Vector(54.5, -85, 0), Vector(0, 0, 1), 1.6),
    Part.Circle(Vector(54.5, -115, 0), Vector(0, 0, 1), 1.6),
], False)
sketch6.addConstraint([
    Sketcher.Constraint("Equal", 0, 1),
    Sketcher.Constraint("Equal", 1, 2),
    Sketcher.Constraint("Equal", 2, 3),
    Sketcher.Constraint("Horizontal", 1, 3, 2, 3),
    Sketcher.Constraint("Horizontal", 0, 3, 3, 3),
    Sketcher.Constraint("Vertical", 0, 3, 1, 3),
    Sketcher.Constraint("Vertical", 2, 3, 3, 3),
    Sketcher.Constraint("Diameter", 0, 3.2),
    Sketcher.Constraint("DistanceY", 0, 3, -1, 1, 115.0),
    Sketcher.Constraint("DistanceY", 1, 3, -1, 1, 85.0),
    Sketcher.Constraint("DistanceX", 2, 3, 1, 3, 91.0),
    Sketcher.Constraint("DistanceX", -1, 1, 0, 3, 145.5),
])
pocket5 = body.newObject("PartDesign::Pocket", "Pocket004")
pocket5.Profile = sketch6
pocket5.Length = 5
pocket5.Reversed = True

# Sketch on XZ plane
sketch7 = body.newObject("Sketcher::SketchObject", "Sketch006")
sketch7.AttachmentSupport = (doc.getObject("XZ_Plane"), [""])
sketch7.MapMode = "FlatFace"
sketch7.AttachmentOffset = App.Placement(Vector(0, 0, -5), App.Rotation())
sketch7.addGeometry([
    Part.Circle(Vector(131.5, -129, 0), Vector(0, 0, 1), 1.6),
    Part.Circle(Vector(68.5, -129, 0), Vector(0, 0, 1), 1.6),
    Part.Circle(Vector(131.5, -71, 0), Vector(0, 0, 1), 1.6),
    Part.Circle(Vector(68.5, -71, 0), Vector(0, 0, 1), 1.6),
], False)
sketch7.addConstraint([
    Sketcher.Constraint("Equal", 0, 1),
    Sketcher.Constraint("Equal", 1, 2),
    Sketcher.Constraint("Equal", 2, 3),
    Sketcher.Constraint("Horizontal", 0, 3, 1, 3),
    Sketcher.Constraint("Horizontal", 2, 3, 3, 3),
    Sketcher.Constraint("Vertical", 0, 3, 2, 3),
    Sketcher.Constraint("Vertical", 1, 3, 3, 3),
    Sketcher.Constraint("Diameter", 0, 3.2),
    Sketcher.Constraint("DistanceX", 1, 3, 0, 3, 63.0),
    Sketcher.Constraint("DistanceY", 0, 3, 2, 3, 58.0),
    Sketcher.Constraint("DistanceY", 0, 3, -1, 1, 129.0),
    Sketcher.Constraint("DistanceX", -1, 1, 0, 3, 131.5),
])
pocket6 = body.newObject("PartDesign::Pocket", "Pocket005")
pocket6.Profile = sketch7
pocket6.Length = 10
pocket6.Reversed = True

doc.recompute()
